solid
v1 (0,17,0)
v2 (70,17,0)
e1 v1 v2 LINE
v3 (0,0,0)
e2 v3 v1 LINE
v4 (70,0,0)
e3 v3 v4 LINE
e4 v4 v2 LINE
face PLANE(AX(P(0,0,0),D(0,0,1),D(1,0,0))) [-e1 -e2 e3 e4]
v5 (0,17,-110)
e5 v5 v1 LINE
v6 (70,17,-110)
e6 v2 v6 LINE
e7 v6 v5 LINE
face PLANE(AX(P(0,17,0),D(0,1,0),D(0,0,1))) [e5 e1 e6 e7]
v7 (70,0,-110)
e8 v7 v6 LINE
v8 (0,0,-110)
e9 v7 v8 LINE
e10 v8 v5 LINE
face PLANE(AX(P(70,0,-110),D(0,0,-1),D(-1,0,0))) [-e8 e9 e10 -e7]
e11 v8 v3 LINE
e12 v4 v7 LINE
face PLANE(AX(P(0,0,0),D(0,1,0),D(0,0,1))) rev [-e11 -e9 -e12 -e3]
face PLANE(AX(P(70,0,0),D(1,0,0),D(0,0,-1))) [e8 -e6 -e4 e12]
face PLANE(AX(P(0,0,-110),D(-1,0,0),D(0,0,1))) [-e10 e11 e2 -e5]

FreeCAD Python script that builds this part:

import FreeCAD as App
import Part
import Sketcher
from FreeCAD import Vector
Q = App.Units.Quantity

doc = App.newDocument("Part")
body = doc.addObject("PartDesign::Body", "Body")

# Sketch on XZ plane
sketch1 = body.newObject("Sketcher::SketchObject", "Sketch")
sketch1.AttachmentSupport = (doc.getObject("XZ_Plane"), [""])
sketch1.MapMode = "FlatFace"
sketch1.AttachmentOffset = App.Placement(Vector(0, 0, -17), App.Rotation())
sketch1.addGeometry([
    Part.LineSegment(Vector(0, -110, 0), Vector(0, 0, 0)),
    Part.LineSegment(Vector(0, 0, 0), Vector(70, 0, 0)),
    Part.LineSegment(Vector(70, 0, 0), Vector(70, -110, 0)),
    Part.LineSegment(Vector(70, -110, 0), Vector(0, -110, 0)),
], False)
sketch1.addConstraint([
    Sketcher.Constraint("Coincident", 0, 2, 1, 1),
    Sketcher.Constraint("Coincident", 1, 2, 2, 1),
    Sketcher.Constraint("Coincident", 2, 2, 3, 1),
    Sketcher.Constraint("Coincident", 3, 2, 0, 1),
    Sketcher.Constraint("Vertical", 0),
    Sketcher.Constraint("Horizontal", 1),
    Sketcher.Constraint("Vertical", 2),
    Sketcher.Constraint("Horizontal", 3),
    Sketcher.Constraint("Coincident", 0, 2, -1, 1),
    Sketcher.Constraint("DistanceX", 1, 1, 1, 2, Q("70 mm")),
    Sketcher.Constraint("DistanceY", 0, 1, 0, 2, Q("110 mm")),
])
pad1 = body.newObject("PartDesign::Pad", "Pad")
pad1.Profile = sketch1
pad1.Length = 17

doc.recompute()
